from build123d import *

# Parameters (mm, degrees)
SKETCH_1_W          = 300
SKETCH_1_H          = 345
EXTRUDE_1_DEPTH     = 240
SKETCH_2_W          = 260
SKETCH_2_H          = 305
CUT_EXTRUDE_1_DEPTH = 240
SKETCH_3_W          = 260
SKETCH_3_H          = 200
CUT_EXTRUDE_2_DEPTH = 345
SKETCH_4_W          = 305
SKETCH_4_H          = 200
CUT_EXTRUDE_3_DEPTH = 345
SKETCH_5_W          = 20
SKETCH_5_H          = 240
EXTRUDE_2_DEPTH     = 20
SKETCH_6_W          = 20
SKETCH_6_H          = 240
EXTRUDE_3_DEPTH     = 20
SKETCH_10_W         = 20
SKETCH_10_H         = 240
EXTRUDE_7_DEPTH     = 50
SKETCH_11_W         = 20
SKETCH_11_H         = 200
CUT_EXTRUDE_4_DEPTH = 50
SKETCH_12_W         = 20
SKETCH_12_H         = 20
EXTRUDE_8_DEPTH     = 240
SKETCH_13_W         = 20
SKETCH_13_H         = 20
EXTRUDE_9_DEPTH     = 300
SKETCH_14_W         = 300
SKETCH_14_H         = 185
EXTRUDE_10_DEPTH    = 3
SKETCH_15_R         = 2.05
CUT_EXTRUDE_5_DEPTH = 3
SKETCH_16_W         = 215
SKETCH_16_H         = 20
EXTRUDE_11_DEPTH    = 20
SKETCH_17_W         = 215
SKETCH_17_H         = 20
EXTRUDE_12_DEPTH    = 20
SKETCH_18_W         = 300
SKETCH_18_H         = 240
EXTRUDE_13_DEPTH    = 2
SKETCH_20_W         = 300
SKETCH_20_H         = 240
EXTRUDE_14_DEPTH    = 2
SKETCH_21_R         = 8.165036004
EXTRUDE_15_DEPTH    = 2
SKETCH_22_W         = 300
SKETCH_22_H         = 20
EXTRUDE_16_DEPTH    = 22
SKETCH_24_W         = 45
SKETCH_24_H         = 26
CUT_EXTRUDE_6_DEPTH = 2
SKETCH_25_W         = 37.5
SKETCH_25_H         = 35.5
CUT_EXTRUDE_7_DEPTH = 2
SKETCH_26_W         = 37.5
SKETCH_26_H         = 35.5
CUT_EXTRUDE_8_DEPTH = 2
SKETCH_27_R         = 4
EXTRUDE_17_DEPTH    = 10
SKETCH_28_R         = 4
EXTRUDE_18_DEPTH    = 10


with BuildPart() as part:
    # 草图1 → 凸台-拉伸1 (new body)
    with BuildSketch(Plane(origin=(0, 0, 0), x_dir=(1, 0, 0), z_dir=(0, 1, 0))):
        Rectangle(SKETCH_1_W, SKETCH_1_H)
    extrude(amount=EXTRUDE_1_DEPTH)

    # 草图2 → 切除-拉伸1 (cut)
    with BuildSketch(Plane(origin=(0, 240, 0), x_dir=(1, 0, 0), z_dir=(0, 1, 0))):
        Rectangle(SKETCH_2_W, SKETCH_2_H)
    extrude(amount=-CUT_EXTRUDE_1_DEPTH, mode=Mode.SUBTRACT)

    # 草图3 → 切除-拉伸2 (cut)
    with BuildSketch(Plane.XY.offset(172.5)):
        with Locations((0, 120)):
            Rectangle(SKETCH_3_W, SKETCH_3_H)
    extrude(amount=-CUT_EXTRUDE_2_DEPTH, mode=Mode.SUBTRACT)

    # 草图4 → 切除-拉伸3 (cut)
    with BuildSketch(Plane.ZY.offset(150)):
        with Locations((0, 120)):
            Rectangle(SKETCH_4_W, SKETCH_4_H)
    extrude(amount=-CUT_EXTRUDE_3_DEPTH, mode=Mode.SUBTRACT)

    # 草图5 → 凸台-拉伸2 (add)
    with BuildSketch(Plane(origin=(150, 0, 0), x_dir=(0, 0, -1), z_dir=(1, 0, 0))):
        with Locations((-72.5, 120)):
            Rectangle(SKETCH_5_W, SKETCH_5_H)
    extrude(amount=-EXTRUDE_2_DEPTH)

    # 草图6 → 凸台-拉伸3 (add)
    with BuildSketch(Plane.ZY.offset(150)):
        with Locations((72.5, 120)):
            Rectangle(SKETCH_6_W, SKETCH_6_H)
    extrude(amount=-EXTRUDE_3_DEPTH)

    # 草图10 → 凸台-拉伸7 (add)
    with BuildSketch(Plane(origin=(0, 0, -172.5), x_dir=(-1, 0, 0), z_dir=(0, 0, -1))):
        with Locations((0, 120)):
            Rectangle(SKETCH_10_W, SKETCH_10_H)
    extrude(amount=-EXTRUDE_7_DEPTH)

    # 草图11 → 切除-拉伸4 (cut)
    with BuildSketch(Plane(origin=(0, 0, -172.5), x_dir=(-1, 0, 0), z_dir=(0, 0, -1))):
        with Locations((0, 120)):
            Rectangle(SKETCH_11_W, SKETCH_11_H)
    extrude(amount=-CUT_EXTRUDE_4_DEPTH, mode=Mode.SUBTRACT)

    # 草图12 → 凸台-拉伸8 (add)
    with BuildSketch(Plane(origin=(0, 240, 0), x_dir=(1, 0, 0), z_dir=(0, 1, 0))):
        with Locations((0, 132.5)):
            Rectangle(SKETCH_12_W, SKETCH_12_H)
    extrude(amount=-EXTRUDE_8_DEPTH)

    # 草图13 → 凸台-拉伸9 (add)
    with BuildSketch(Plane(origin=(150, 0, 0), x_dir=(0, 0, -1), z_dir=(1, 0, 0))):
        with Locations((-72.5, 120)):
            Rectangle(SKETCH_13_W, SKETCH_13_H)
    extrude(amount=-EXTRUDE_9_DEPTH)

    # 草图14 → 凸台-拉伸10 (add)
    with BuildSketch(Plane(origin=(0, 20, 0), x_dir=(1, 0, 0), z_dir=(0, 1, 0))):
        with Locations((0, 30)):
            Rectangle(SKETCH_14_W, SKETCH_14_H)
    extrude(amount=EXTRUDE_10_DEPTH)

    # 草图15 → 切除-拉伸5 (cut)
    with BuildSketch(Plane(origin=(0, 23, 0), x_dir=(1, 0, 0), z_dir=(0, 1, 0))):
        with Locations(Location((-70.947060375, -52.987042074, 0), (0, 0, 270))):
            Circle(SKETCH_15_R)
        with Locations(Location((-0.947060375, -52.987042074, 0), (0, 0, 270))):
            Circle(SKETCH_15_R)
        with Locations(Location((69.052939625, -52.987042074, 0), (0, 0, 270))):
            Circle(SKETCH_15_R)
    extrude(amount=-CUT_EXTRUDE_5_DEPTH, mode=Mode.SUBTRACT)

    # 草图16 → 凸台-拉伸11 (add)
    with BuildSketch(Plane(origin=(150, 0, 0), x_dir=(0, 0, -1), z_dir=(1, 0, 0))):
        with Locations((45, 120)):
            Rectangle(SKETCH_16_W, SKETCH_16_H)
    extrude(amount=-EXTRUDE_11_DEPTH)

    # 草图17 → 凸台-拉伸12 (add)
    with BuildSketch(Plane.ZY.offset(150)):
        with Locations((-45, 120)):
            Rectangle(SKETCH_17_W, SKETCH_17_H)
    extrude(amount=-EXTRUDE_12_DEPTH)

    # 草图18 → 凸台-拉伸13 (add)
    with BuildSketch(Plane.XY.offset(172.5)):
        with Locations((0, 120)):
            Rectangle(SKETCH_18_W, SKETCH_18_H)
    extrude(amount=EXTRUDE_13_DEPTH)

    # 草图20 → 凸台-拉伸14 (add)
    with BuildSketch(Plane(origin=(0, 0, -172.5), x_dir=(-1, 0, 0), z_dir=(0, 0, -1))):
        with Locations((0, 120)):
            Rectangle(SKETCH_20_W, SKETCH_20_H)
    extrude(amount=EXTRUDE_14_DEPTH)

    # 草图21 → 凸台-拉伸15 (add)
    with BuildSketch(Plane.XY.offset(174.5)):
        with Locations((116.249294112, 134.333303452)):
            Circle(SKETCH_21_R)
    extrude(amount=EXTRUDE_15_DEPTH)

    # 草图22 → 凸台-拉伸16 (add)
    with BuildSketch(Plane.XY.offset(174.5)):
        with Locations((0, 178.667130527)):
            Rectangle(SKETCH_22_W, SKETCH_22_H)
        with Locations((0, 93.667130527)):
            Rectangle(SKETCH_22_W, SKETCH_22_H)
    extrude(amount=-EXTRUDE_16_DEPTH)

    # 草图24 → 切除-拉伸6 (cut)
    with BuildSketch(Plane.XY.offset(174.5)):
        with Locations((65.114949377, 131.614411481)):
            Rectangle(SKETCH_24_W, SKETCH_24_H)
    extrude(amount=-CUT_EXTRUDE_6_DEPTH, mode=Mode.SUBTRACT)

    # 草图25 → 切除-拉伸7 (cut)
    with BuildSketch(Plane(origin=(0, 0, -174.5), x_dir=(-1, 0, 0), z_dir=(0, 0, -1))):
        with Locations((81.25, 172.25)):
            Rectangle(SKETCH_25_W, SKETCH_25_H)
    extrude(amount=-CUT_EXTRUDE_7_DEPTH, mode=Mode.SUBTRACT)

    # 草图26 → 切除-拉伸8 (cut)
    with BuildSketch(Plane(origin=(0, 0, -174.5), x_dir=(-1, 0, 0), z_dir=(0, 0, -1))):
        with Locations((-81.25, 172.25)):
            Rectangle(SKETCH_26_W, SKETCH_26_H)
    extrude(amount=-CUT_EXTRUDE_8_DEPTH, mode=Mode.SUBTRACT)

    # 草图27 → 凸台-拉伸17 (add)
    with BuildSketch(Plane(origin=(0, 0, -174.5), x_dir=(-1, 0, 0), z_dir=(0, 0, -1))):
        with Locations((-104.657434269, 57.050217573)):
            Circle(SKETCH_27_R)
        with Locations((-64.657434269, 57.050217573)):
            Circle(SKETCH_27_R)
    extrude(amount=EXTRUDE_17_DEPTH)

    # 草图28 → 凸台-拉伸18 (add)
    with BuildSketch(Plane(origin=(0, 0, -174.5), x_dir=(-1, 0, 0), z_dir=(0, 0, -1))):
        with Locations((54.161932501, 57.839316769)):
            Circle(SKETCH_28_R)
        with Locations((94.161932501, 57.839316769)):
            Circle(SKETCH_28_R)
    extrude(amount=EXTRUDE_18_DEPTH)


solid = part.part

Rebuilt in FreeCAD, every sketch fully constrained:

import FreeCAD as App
import Part
import Sketcher
from FreeCAD import Vector

doc = App.newDocument("Part")
body = doc.addObject("PartDesign::Body", "Body")

# Sketch on XZ plane
sketch1 = body.newObject("Sketcher::SketchObject", "Sketch")
sketch1.AttachmentSupport = (doc.getObject("XZ_Plane"), [""])
sketch1.MapMode = "FlatFace"
sketch1.addGeometry([
    Part.LineSegment(Vector(-150, -172.5, 0), Vector(-150, 172.5, 0)),
    Part.LineSegment(Vector(-150, 172.5, 0), Vector(150, 172.5, 0)),
    Part.LineSegment(Vector(150, 172.5, 0), Vector(150, -172.5, 0)),
    Part.LineSegment(Vector(150, -172.5, 0), Vector(-150, -172.5, 0)),
], False)
sketch1.addConstraint([
    Sketcher.Constraint("Coincident", 0, 2, 1, 1),
    Sketcher.Constraint("Coincident", 1, 2, 2, 1),
    Sketcher.Constraint("Coincident", 2, 2, 3, 1),
    Sketcher.Constraint("Coincident", 3, 2, 0, 1),
    Sketcher.Constraint("Vertical", 0),
    Sketcher.Constraint("Horizontal", 1),
    Sketcher.Constraint("Vertical", 2),
    Sketcher.Constraint("Horizontal", 3),
    Sketcher.Constraint("Symmetric", 0, 2, 2, 2, -1, 1),
    Sketcher.Constraint("DistanceX", 1, 1, 1, 2, 300.0),
    Sketcher.Constraint("DistanceY", 0, 1, 0, 2, 345.0),
])
pad1 = body.newObject("PartDesign::Pad", "Pad")
pad1.Profile = sketch1
pad1.Length = 240
pad1.Reversed = True

# Sketch on XZ plane
sketch2 = body.newObject("Sketcher::SketchObject", "Sketch001")
sketch2.AttachmentSupport = (doc.getObject("XZ_Plane"), [""])
sketch2.MapMode = "FlatFace"
sketch2.AttachmentOffset = App.Placement(Vector(0, 0, -240), App.Rotation())
sketch2.addGeometry([
    Part.LineSegment(Vector(-130, -152.5, 0), Vector(-130, 152.5, 0)),
    Part.LineSegment(Vector(-130, 152.5, 0), Vector(130, 152.5, 0)),
    Part.LineSegment(Vector(130, 152.5, 0), Vector(130, -152.5, 0)),
    Part.LineSegment(Vector(130, -152.5, 0), Vector(-130, -152.5, 0)),
], False)
sketch2.addConstraint([
    Sketcher.Constraint("Coincident", 0, 2, 1, 1),
    Sketcher.Constraint("Coincident", 1, 2, 2, 1),
    Sketcher.Constraint("Coincident", 2, 2, 3, 1),
    Sketcher.Constraint("Coincident", 3, 2, 0, 1),
    Sketcher.Constraint("Vertical", 0),
    Sketcher.Constraint("Horizontal", 1),
    Sketcher.Constraint("Vertical", 2),
    Sketcher.Constraint("Horizontal", 3),
    Sketcher.Constraint("Symmetric", 0, 2, 2, 2, -1, 1),
    Sketcher.Constraint("DistanceX", 1, 1, 1, 2, 260.0),
    Sketcher.Constraint("DistanceY", 0, 1, 0, 2, 305.0),
])
pocket1 = body.newObject("PartDesign::Pocket", "Pocket")
pocket1.Profile = sketch2
pocket1.Length = 240
pocket1.Reversed = True

# Sketch on XY plane
sketch3 = body.newObject("Sketcher::SketchObject", "Sketch002")
sketch3.AttachmentSupport = (doc.getObject("XY_Plane"), [""])
sketch3.MapMode = "FlatFace"
sketch3.AttachmentOffset = App.Placement(Vector(0, 0, 172.5), App.Rotation())
sketch3.addGeometry([
    Part.LineSegment(Vector(-130, 220, 0), Vector(-130, 20, 0)),
    Part.LineSegment(Vector(-130, 20, 0), Vector(130, 20, 0)),
    Part.LineSegment(Vector(130, 20, 0), Vector(130, 220, 0)),
    Part.LineSegment(Vector(130, 220, 0), Vector(-130, 220, 0)),
], False)
sketch3.addConstraint([
    Sketcher.Constraint("Coincident", 0, 2, 1, 1),
    Sketcher.Constraint("Coincident", 1, 2, 2, 1),
    Sketcher.Constraint("Coincident", 2, 2, 3, 1),
    Sketcher.Constraint("Coincident", 3, 2, 0, 1),
    Sketcher.Constraint("Vertical", 0),
    Sketcher.Constraint("Horizontal", 1),
    Sketcher.Constraint("Vertical", 2),
    Sketcher.Constraint("Horizontal", 3),
    Sketcher.Constraint("DistanceX", 1, 1, 1, 2, 260.0),
    Sketcher.Constraint("DistanceY", 0, 2, 0, 1, 200.0),
    Sketcher.Constraint("DistanceX", 0, 2, -1, 1, 130.0),
    Sketcher.Constraint("DistanceY", -1, 1, 0, 2, 20.0),
])
pocket2 = body.newObject("PartDesign::Pocket", "Pocket001")
pocket2.Profile = sketch3
pocket2.Length = 345

# Sketch on YZ plane
sketch4 = body.newObject("Sketcher::SketchObject", "Sketch003")
sketch4.AttachmentSupport = (doc.getObject("YZ_Plane"), [""])
sketch4.MapMode = "FlatFace"
sketch4.AttachmentOffset = App.Placement(Vector(0, 0, -150), App.Rotation())
sketch4.addGeometry([
    Part.LineSegment(Vector(220, -152.5, 0), Vector(20, -152.5, 0)),
    Part.LineSegment(Vector(20, -152.5, 0), Vector(20, 152.5, 0)),
    Part.LineSegment(Vector(20, 152.5, 0), Vector(220, 152.5, 0)),
    Part.LineSegment(Vector(220, 152.5, 0), Vector(220, -152.5, 0)),
], False)
sketch4.addConstraint([
    Sketcher.Constraint("Coincident", 0, 2, 1, 1),
    Sketcher.Constraint("Coincident", 1, 2, 2, 1),
    Sketcher.Constraint("Coincident", 2, 2, 3, 1),
    Sketcher.Constraint("Coincident", 3, 2, 0, 1),
    Sketcher.Constraint("Horizontal", 0),
    Sketcher.Constraint("Vertical", 1),
    Sketcher.Constraint("Horizontal", 2),
    Sketcher.Constraint("Vertical", 3),
    Sketcher.Constraint("DistanceX", 0, 2, 0, 1, 200.0),
    Sketcher.Constraint("DistanceY", 1, 1, 1, 2, 305.0),
    Sketcher.Constraint("DistanceX", -1, 1, 0, 2, 20.0),
    Sketcher.Constraint("DistanceY", 0, 2, -1, 1, 152.5),
])
pocket3 = body.newObject("PartDesign::Pocket", "Pocket002")
pocket3.Profile = sketch4
pocket3.Length = 345
pocket3.Reversed = True

# Sketch on YZ plane
sketch5 = body.newObject("Sketcher::SketchObject", "Sketch004")
sketch5.AttachmentSupport = (doc.getObject("YZ_Plane"), [""])
sketch5.MapMode = "FlatFace"
sketch5.AttachmentOffset = App.Placement(Vector(0, 0, 150), App.Rotation())
sketch5.addGeometry([
    Part.LineSegment(Vector(240, 82.5, 0), Vector(0, 82.5, 0)),
    Part.LineSegment(Vector(0, 82.5, 0), Vector(0, 62.5, 0)),
    Part.LineSegment(Vector(0, 62.5, 0), Vector(240, 62.5, 0)),
    Part.LineSegment(Vector(240, 62.5, 0), Vector(240, 82.5, 0)),
], False)
sketch5.addConstraint([
    Sketcher.Constraint("Coincident", 0, 2, 1, 1),
    Sketcher.Constraint("Coincident", 1, 2, 2, 1),
    Sketcher.Constraint("Coincident", 2, 2, 3, 1),
    Sketcher.Constraint("Coincident", 3, 2, 0, 1),
    Sketcher.Constraint("Horizontal", 0),
    Sketcher.Constraint("Vertical", 1),
    Sketcher.Constraint("Horizontal", 2),
    Sketcher.Constraint("Vertical", 3),
    Sketcher.Constraint("PointOnObject", 0, 2, -2),
    Sketcher.Constraint("DistanceX", 0, 2, 0, 1, 240.0),
    Sketcher.Constraint("DistanceY", 1, 2, 1, 1, 20.0),
    Sketcher.Constraint("DistanceY", -1, 1, 0, 2, 82.5),
])
pad2 = body.newObject("PartDesign::Pad", "Pad001")
pad2.Profile = sketch5
pad2.Length = 20
pad2.Reversed = True

# Sketch on YZ plane
sketch6 = body.newObject("Sketcher::SketchObject", "Sketch005")
sketch6.AttachmentSupport = (doc.getObject("YZ_Plane"), [""])
sketch6.MapMode = "FlatFace"
sketch6.AttachmentOffset = App.Placement(Vector(0, 0, -150), App.Rotation())
sketch6.addGeometry([
    Part.LineSegment(Vector(240, 62.5, 0), Vector(0, 62.5, 0)),
    Part.LineSegment(Vector(0, 62.5, 0), Vector(0, 82.5, 0)),
    Part.LineSegment(Vector(0, 82.5, 0), Vector(240, 82.5, 0)),
    Part.LineSegment(Vector(240, 82.5, 0), Vector(240, 62.5, 0)),
], False)
sketch6.addConstraint([
    Sketcher.Constraint("Coincident", 0, 2, 1, 1),
    Sketcher.Constraint("Coincident", 1, 2, 2, 1),
    Sketcher.Constraint("Coincident", 2, 2, 3, 1),
    Sketcher.Constraint("Coincident", 3, 2, 0, 1),
    Sketcher.Constraint("Horizontal", 0),
    Sketcher.Constraint("Vertical", 1),
    Sketcher.Constraint("Horizontal", 2),
    Sketcher.Constraint("Vertical", 3),
    Sketcher.Constraint("PointOnObject", 0, 2, -2),
    Sketcher.Constraint("DistanceX", 0, 2, 0, 1, 240.0),
    Sketcher.Constraint("DistanceY", 1, 1, 1, 2, 20.0),
    Sketcher.Constraint("DistanceY", -1, 1, 0, 2, 62.5),
])
pad3 = body.newObject("PartDesign::Pad", "Pad002")
pad3.Profile = sketch6
pad3.Length = 20

# Sketch on XY plane
sketch7 = body.newObject("Sketcher::SketchObject", "Sketch006")
sketch7.AttachmentSupport = (doc.getObject("XY_Plane"), [""])
sketch7.MapMode = "FlatFace"
sketch7.AttachmentOffset = App.Placement(Vector(0, 0, -172.5), App.Rotation())
sketch7.addGeometry([
    Part.LineSegment(Vector(10, 240, 0), Vector(10, 0, 0)),
    Part.LineSegment(Vector(10, 0, 0), Vector(-10, 0, 0)),
    Part.LineSegment(Vector(-10, 0, 0), Vector(-10, 240, 0)),
    Part.LineSegment(Vector(-10, 240, 0), Vector(10, 240, 0)),
], False)
sketch7.addConstraint([
    Sketcher.Constraint("Coincident", 0, 2, 1, 1),
    Sketcher.Constraint("Coincident", 1, 2, 2, 1),
    Sketcher.Constraint("Coincident", 2, 2, 3, 1),
    Sketcher.Constraint("Coincident", 3, 2, 0, 1),
    Sketcher.Constraint("Vertical", 0),
    Sketcher.Constraint("Horizontal", 1),
    Sketcher.Constraint("Vertical", 2),
    Sketcher.Constraint("Horizontal", 3),
    Sketcher.Constraint("Symmetric", 0, 2, 1, 2, -1, 1),
    Sketcher.Constraint("DistanceX", 1, 2, 1, 1, 20.0),
    Sketcher.Constraint("DistanceY", 0, 2, 0, 1, 240.0),
])
pad4 = body.newObject("PartDesign::Pad", "Pad003")
pad4.Profile = sketch7
pad4.Length = 50

# Sketch on XY plane
sketch8 = body.newObject("Sketcher::SketchObject", "Sketch007")
sketch8.AttachmentSupport = (doc.getObject("XY_Plane"), [""])
sketch8.MapMode = "FlatFace"
sketch8.AttachmentOffset = App.Placement(Vector(0, 0, -172.5), App.Rotation())
sketch8.addGeometry([
    Part.LineSegment(Vector(10, 220, 0), Vector(10, 20, 0)),
    Part.LineSegment(Vector(10, 20, 0), Vector(-10, 20, 0)),
    Part.LineSegment(Vector(-10, 20, 0), Vector(-10, 220, 0)),
    Part.LineSegment(Vector(-10, 220, 0), Vector(10, 220, 0)),
], False)
sketch8.addConstraint([
    Sketcher.Constraint("Coincident", 0, 2, 1, 1),
    Sketcher.Constraint("Coincident", 1, 2, 2, 1),
    Sketcher.Constraint("Coincident", 2, 2, 3, 1),
    Sketcher.Constraint("Coincident", 3, 2, 0, 1),
    Sketcher.Constraint("Vertical", 0),
    Sketcher.Constraint("Horizontal", 1),
    Sketcher.Constraint("Vertical", 2),
    Sketcher.Constraint("Horizontal", 3),
    Sketcher.Constraint("DistanceX", 1, 2, 1, 1, 20.0),
    Sketcher.Constraint("DistanceY", 0, 2, 0, 1, 200.0),
    Sketcher.Constraint("DistanceX", -1, 1, 0, 2, 10.0),
    Sketcher.Constraint("DistanceY", -1, 1, 0, 2, 20.0),
])
pocket4 = body.newObject("PartDesign::Pocket", "Pocket003")
pocket4.Profile = sketch8
pocket4.Length = 50
pocket4.Reversed = True

# Sketch on XZ plane
sketch9 = body.newObject("Sketcher::SketchObject", "Sketch008")
sketch9.AttachmentSupport = (doc.getObject("XZ_Plane"), [""])
sketch9.MapMode = "FlatFace"
sketch9.AttachmentOffset = App.Placement(Vector(0, 0, -240), App.Rotation())
sketch9.addGeometry([
    Part.LineSegment(Vector(-10, -142.5, 0), Vector(-10, -122.5, 0)),
    Part.LineSegment(Vector(-10, -122.5, 0), Vector(10, -122.5, 0)),
    Part.LineSegment(Vector(10, -122.5, 0), Vector(10, -142.5, 0)),
    Part.LineSegment(Vector(10, -142.5, 0), Vector(-10, -142.5, 0)),
], False)
sketch9.addConstraint([
    Sketcher.Constraint("Coincident", 0, 2, 1, 1),
    Sketcher.Constraint("Coincident", 1, 2, 2, 1),
    Sketcher.Constraint("Coincident", 2, 2, 3, 1),
    Sketcher.Constraint("Coincident", 3, 2, 0, 1),
    Sketcher.Constraint("Vertical", 0),
    Sketcher.Constraint("Horizontal", 1),
    Sketcher.Constraint("Vertical", 2),
    Sketcher.Constraint("Horizontal", 3),
    Sketcher.Constraint("Equal", 3, 0),
    Sketcher.Constraint("DistanceX", 1, 1, 1, 2, 20.0),
    Sketcher.Constraint("DistanceX", 0, 2, -1, 1, 10.0),
    Sketcher.Constraint("DistanceY", 0, 2, -1, 1, 122.5),
])
pad5 = body.newObject("PartDesign::Pad", "Pad004")
pad5.Profile = sketch9
pad5.Length = 240

# Sketch on YZ plane
sketch10 = body.newObject("Sketcher::SketchObject", "Sketch009")
sketch10.AttachmentSupport = (doc.getObject("YZ_Plane"), [""])
sketch10.MapMode = "FlatFace"
sketch10.AttachmentOffset = App.Placement(Vector(0, 0, 150), App.Rotation())
sketch10.addGeometry([
    Part.LineSegment(Vector(130, 82.5, 0), Vector(110, 82.5, 0)),
    Part.LineSegment(Vector(110, 82.5, 0), Vector(110, 62.5, 0)),
    Part.LineSegment(Vector(110, 62.5, 0), Vector(130, 62.5, 0)),
    Part.LineSegment(Vector(130, 62.5, 0), Vector(130, 82.5, 0)),
], False)
sketch10.addConstraint([
    Sketcher.Constraint("Coincident", 0, 2, 1, 1),
    Sketcher.Constraint("Coincident", 1, 2, 2, 1),
    Sketcher.Constraint("Coincident", 2, 2, 3, 1),
    Sketcher.Constraint("Coincident", 3, 2, 0, 1),
    Sketcher.Constraint("Horizontal", 0),
    Sketcher.Constraint("Vertical", 1),
    Sketcher.Constraint("Horizontal", 2),
    Sketcher.Constraint("Vertical", 3),
    Sketcher.Constraint("Equal", 2, 1),
    Sketcher.Constraint("DistanceX", 0, 2, 0, 1, 20.0),
    Sketcher.Constraint("DistanceX", -1, 1, 0, 2, 110.0),
    Sketcher.Constraint("DistanceY", -1, 1, 0, 2, 82.5),
])
pad6 = body.newObject("PartDesign::Pad", "Pad005")
pad6.Profile = sketch10
pad6.Length = 300
pad6.Reversed = True

# Sketch on XZ plane
sketch11 = body.newObject("Sketcher::SketchObject", "Sketch010")
sketch11.AttachmentSupport = (doc.getObject("XZ_Plane"), [""])
sketch11.MapMode = "FlatFace"
sketch11.AttachmentOffset = App.Placement(Vector(0, 0, -20), App.Rotation())
sketch11.addGeometry([
    Part.LineSegment(Vector(-150, -122.5, 0), Vector(-150, 62.5, 0)),
    Part.LineSegment(Vector(-150, 62.5, 0), Vector(150, 62.5, 0)),
    Part.LineSegment(Vector(150, 62.5, 0), Vector(150, -122.5, 0)),
    Part.LineSegment(Vector(150, -122.5, 0), Vector(-150, -122.5, 0)),
], False)
sketch11.addConstraint([
    Sketcher.Constraint("Coincident", 0, 2, 1, 1),
    Sketcher.Constraint("Coincident", 1, 2, 2, 1),
    Sketcher.Constraint("Coincident", 2, 2, 3, 1),
    Sketcher.Constraint("Coincident", 3, 2, 0, 1),
    Sketcher.Constraint("Vertical", 0),
    Sketcher.Constraint("Horizontal", 1),
    Sketcher.Constraint("Vertical", 2),
    Sketcher.Constraint("Horizontal", 3),
    Sketcher.Constraint("DistanceX", 1, 1, 1, 2, 300.0),
    Sketcher.Constraint("DistanceY", 0, 1, 0, 2, 185.0),
    Sketcher.Constraint("DistanceX", 0, 2, -1, 1, 150.0),
    Sketcher.Constraint("DistanceY", -1, 1, 0, 2, 62.5),
])
pad7 = body.newObject("PartDesign::Pad", "Pad006")
pad7.Profile = sketch11
pad7.Length = 3
pad7.Reversed = True

# Sketch on XZ plane
sketch12 = body.newObject("Sketcher::SketchObject", "Sketch011")
sketch12.AttachmentSupport = (doc.getObject("XZ_Plane"), [""])
sketch12.MapMode = "FlatFace"
sketch12.AttachmentOffset = App.Placement(Vector(0, 0, -23), App.Rotation())
sketch12.addGeometry([
    Part.Circle(Vector(-70.94706, 52.987042, 0), Vector(0, 0, 1), 2.05),
    Part.Circle(Vector(-0.94706, 52.987042, 0), Vector(0, 0, 1), 2.05),
    Part.Circle(Vector(69.05294, 52.987042, 0), Vector(0, 0, 1), 2.05),
], False)
sketch12.addConstraint([
    Sketcher.Constraint("Equal", 0, 1),
    Sketcher.Constraint("Equal", 1, 2),
    Sketcher.Constraint("Horizontal", 0, 3, 1, 3),
    Sketcher.Constraint("Horizontal", 1, 3, 2, 3),
    Sketcher.Constraint("Diameter", 0, 4.1),
    Sketcher.Constraint("DistanceX", 0, 3, 1, 3, 70.0),
    Sketcher.Constraint("DistanceX", 1, 3, 2, 3, 70.0),
    Sketcher.Constraint("DistanceX", 0, 3, -1, 1, 70.94706),
    Sketcher.Constraint("DistanceY", -1, 1, 0, 3, 52.987042),
])
pocket5 = body.newObject("PartDesign::Pocket", "Pocket004")
pocket5.Profile = sketch12
pocket5.Length = 3
pocket5.Reversed = True

# Sketch on YZ plane
sketch13 = body.newObject("Sketcher::SketchObject", "Sketch012")
sketch13.AttachmentSupport = (doc.getObject("YZ_Plane"), [""])
sketch13.MapMode = "FlatFace"
sketch13.AttachmentOffset = App.Placement(Vector(0, 0, 150), App.Rotation())
sketch13.addGeometry([
    Part.LineSegment(Vector(130, 62.5, 0), Vector(110, 62.5, 0)),
    Part.LineSegment(Vector(110, 62.5, 0), Vector(110, -152.5, 0)),
    Part.LineSegment(Vector(110, -152.5, 0), Vector(130, -152.5, 0)),
    Part.LineSegment(Vector(130, -152.5, 0), Vector(130, 62.5, 0)),
], False)
sketch13.addConstraint([
    Sketcher.Constraint("Coincident", 0, 2, 1, 1),
    Sketcher.Constraint("Coincident", 1, 2, 2, 1),
    Sketcher.Constraint("Coincident", 2, 2, 3, 1),
    Sketcher.Constraint("Coincident", 3, 2, 0, 1),
    Sketcher.Constraint("Horizontal", 0),
    Sketcher.Constraint("Vertical", 1),
    Sketcher.Constraint("Horizontal", 2),
    Sketcher.Constraint("Vertical", 3),
    Sketcher.Constraint("DistanceX", 0, 2, 0, 1, 20.0),
    Sketcher.Constraint("DistanceY", 1, 2, 1, 1, 215.0),
    Sketcher.Constraint("DistanceX", -1, 1, 0, 2, 110.0),
    Sketcher.Constraint("DistanceY", -1, 1, 0, 2, 62.5),
])
pad8 = body.newObject("PartDesign::Pad", "Pad007")
pad8.Profile = sketch13
pad8.Length = 20
pad8.Reversed = True

# Sketch on YZ plane
sketch14 = body.newObject("Sketcher::SketchObject", "Sketch013")
sketch14.AttachmentSupport = (doc.getObject("YZ_Plane"), [""])
sketch14.MapMode = "FlatFace"
sketch14.AttachmentOffset = App.Placement(Vector(0, 0, -150), App.Rotation())
sketch14.addGeometry([
    Part.LineSegment(Vector(130, -152.5, 0), Vector(110, -152.5, 0)),
    Part.LineSegment(Vector(110, -152.5, 0), Vector(110, 62.5, 0)),
    Part.LineSegment(Vector(110, 62.5, 0), Vector(130, 62.5, 0)),
    Part.LineSegment(Vector(130, 62.5, 0), Vector(130, -152.5, 0)),
], False)
sketch14.addConstraint([
    Sketcher.Constraint("Coincident", 0, 2, 1, 1),
    Sketcher.Constraint("Coincident", 1, 2, 2, 1),
    Sketcher.Constraint("Coincident", 2, 2, 3, 1),
    Sketcher.Constraint("Coincident", 3, 2, 0, 1),
    Sketcher.Constraint("Horizontal", 0),
    Sketcher.Constraint("Vertical", 1),
    Sketcher.Constraint("Horizontal", 2),
    Sketcher.Constraint("Vertical", 3),
    Sketcher.Constraint("DistanceX", 0, 2, 0, 1, 20.0),
    Sketcher.Constraint("DistanceY", 1, 1, 1, 2, 215.0),
    Sketcher.Constraint("DistanceX", -1, 1, 0, 2, 110.0),
    Sketcher.Constraint("DistanceY", 0, 2, -1, 1, 152.5),
])
pad9 = body.newObject("PartDesign::Pad", "Pad008")
pad9.Profile = sketch14
pad9.Length = 20

# Sketch on XY plane
sketch15 = body.newObject("Sketcher::SketchObject", "Sketch014")
sketch15.AttachmentSupport = (doc.getObject("XY_Plane"), [""])
sketch15.MapMode = "FlatFace"
sketch15.AttachmentOffset = App.Placement(Vector(0, 0, 172.5), App.Rotation())
sketch15.addGeometry([
    Part.LineSegment(Vector(-150, 240, 0), Vector(-150, 0, 0)),
    Part.LineSegment(Vector(-150, 0, 0), Vector(150, 0, 0)),
    Part.LineSegment(Vector(150, 0, 0), Vector(150, 240, 0)),
    Part.LineSegment(Vector(150, 240, 0), Vector(-150, 240, 0)),
], False)
sketch15.addConstraint([
    Sketcher.Constraint("Coincident", 0, 2, 1, 1),
    Sketcher.Constraint("Coincident", 1, 2, 2, 1),
    Sketcher.Constraint("Coincident", 2, 2, 3, 1),
    Sketcher.Constraint("Coincident", 3, 2, 0, 1),
    Sketcher.Constraint("Vertical", 0),
    Sketcher.Constraint("Horizontal", 1),
    Sketcher.Constraint("Vertical", 2),
    Sketcher.Constraint("Horizontal", 3),
    Sketcher.Constraint("Symmetric", 0, 2, 1, 2, -1, 1),
    Sketcher.Constraint("DistanceX", 1, 1, 1, 2, 300.0),
    Sketcher.Constraint("DistanceY", 0, 2, 0, 1, 240.0),
])
pad10 = body.newObject("PartDesign::Pad", "Pad009")
pad10.Profile = sketch15
pad10.Length = 2

# Sketch on XY plane
sketch16 = body.newObject("Sketcher::SketchObject", "Sketch015")
sketch16.AttachmentSupport = (doc.getObject("XY_Plane"), [""])
sketch16.MapMode = "FlatFace"
sketch16.AttachmentOffset = App.Placement(Vector(0, 0, -172.5), App.Rotation())
sketch16.addGeometry([
    Part.LineSegment(Vector(150, 240, 0), Vector(150, 0, 0)),
    Part.LineSegment(Vector(150, 0, 0), Vector(-150, 0, 0)),
    Part.LineSegment(Vector(-150, 0, 0), Vector(-150, 240, 0)),
    Part.LineSegment(Vector(-150, 240, 0), Vector(150, 240, 0)),
], False)
sketch16.addConstraint([
    Sketcher.Constraint("Coincident", 0, 2, 1, 1),
    Sketcher.Constraint("Coincident", 1, 2, 2, 1),
    Sketcher.Constraint("Coincident", 2, 2, 3, 1),
    Sketcher.Constraint("Coincident", 3, 2, 0, 1),
    Sketcher.Constraint("Vertical", 0),
    Sketcher.Constraint("Horizontal", 1),
    Sketcher.Constraint("Vertical", 2),
    Sketcher.Constraint("Horizontal", 3),
    Sketcher.Constraint("Symmetric", 0, 2, 1, 2, -1, 1),
    Sketcher.Constraint("DistanceX", 1, 2, 1, 1, 300.0),
    Sketcher.Constraint("DistanceY", 0, 2, 0, 1, 240.0),
])
pad11 = body.newObject("PartDesign::Pad", "Pad010")
pad11.Profile = sketch16
pad11.Length = 2
pad11.Reversed = True

# Sketch on XY plane
sketch17 = body.newObject("Sketcher::SketchObject", "Sketch016")
sketch17.AttachmentSupport = (doc.getObject("XY_Plane"), [""])
sketch17.MapMode = "FlatFace"
sketch17.AttachmentOffset = App.Placement(Vector(0, 0, 174.5), App.Rotation())
sketch17.addGeometry(Part.Circle(Vector(116.249294, 134.333303, 0), Vector(0, 0, 1), 8.165036), False)
sketch17.addConstraint([
    Sketcher.Constraint("Diameter", 0, 16.330072),
    Sketcher.Constraint("DistanceX", -1, 1, 0, 3, 116.249294),
    Sketcher.Constraint("DistanceY", -1, 1, 0, 3, 134.333303),
])
pad12 = body.newObject("PartDesign::Pad", "Pad011")
pad12.Profile = sketch17
pad12.Length = 2

# Sketch on XY plane
sketch18 = body.newObject("Sketcher::SketchObject", "Sketch017")
sketch18.AttachmentSupport = (doc.getObject("XY_Plane"), [""])
sketch18.MapMode = "FlatFace"
sketch18.AttachmentOffset = App.Placement(Vector(0, 0, 174.5), App.Rotation())
sketch18.addGeometry([
    Part.LineSegment(Vector(-150, 188.667131, 0), Vector(-150, 168.667131, 0)),  # 0
    Part.LineSegment(Vector(-150, 168.667131, 0), Vector(150, 168.667131, 0)),  # 1
    Part.LineSegment(Vector(150, 168.667131, 0), Vector(150, 188.667131, 0)),  # 2
    Part.LineSegment(Vector(150, 188.667131, 0), Vector(-150, 188.667131, 0)),  # 3
    Part.LineSegment(Vector(-150, 103.667131, 0), Vector(-150, 83.667131, 0)),  # 4
    Part.LineSegment(Vector(-150, 83.667131, 0), Vector(150, 83.667131, 0)),  # 5
    Part.LineSegment(Vector(150, 83.667131, 0), Vector(150, 103.667131, 0)),  # 6
    Part.LineSegment(Vector(150, 103.667131, 0), Vector(-150, 103.667131, 0)),  # 7
], False)
sketch18.addConstraint([
    Sketcher.Constraint("Coincident", 0, 2, 1, 1),
    Sketcher.Constraint("Coincident", 1, 2, 2, 1),
    Sketcher.Constraint("Coincident", 2, 2, 3, 1),
    Sketcher.Constraint("Coincident", 3, 2, 0, 1),
    Sketcher.Constraint("Coincident", 4, 2, 5, 1),
    Sketcher.Constraint("Coincident", 5, 2, 6, 1),
    Sketcher.Constraint("Coincident", 6, 2, 7, 1),
    Sketcher.Constraint("Coincident", 7, 2, 4, 1),
    Sketcher.Constraint("Vertical", 0),
    Sketcher.Constraint("Horizontal", 1),
    Sketcher.Constraint("Vertical", 2),
    Sketcher.Constraint("Horizontal", 3),
    Sketcher.Constraint("Vertical", 4),
    Sketcher.Constraint("Horizontal", 5),
    Sketcher.Constraint("Vertical", 6),
    Sketcher.Constraint("Horizontal", 7),
    Sketcher.Constraint("Vertical", 3, 2, 4, 2),
    Sketcher.Constraint("Vertical", 2, 2, 5, 2),
    Sketcher.Constraint("Equal", 2, 4),
    Sketcher.Constraint("DistanceX", 1, 1, 1, 2, 300.0),
    Sketcher.Constraint("DistanceY", 0, 2, 0, 1, 20.0),
    Sketcher.Constraint("DistanceX", 0, 2, -1, 1, 150.0),
    Sketcher.Constraint("DistanceY", 4, 2, 0, 2, 85.0),
    Sketcher.Constraint("DistanceY", -1, 1, 0, 2, 168.667131),
])
pad13 = body.newObject("PartDesign::Pad", "Pad012")
pad13.Profile = sketch18
pad13.Length = 22
pad13.Reversed = True

# Sketch on XY plane
sketch19 = body.newObject("Sketcher::SketchObject", "Sketch018")
sketch19.AttachmentSupport = (doc.getObject("XY_Plane"), [""])
sketch19.MapMode = "FlatFace"
sketch19.AttachmentOffset = App.Placement(Vector(0, 0, 174.5), App.Rotation())
sketch19.addGeometry([
    Part.LineSegment(Vector(42.614949, 144.614411, 0), Vector(42.614949, 118.614411, 0)),
    Part.LineSegment(Vector(42.614949, 118.614411, 0), Vector(87.614949, 118.614411, 0)),
    Part.LineSegment(Vector(87.614949, 118.614411, 0), Vector(87.614949, 144.614411, 0)),
    Part.LineSegment(Vector(87.614949, 144.614411, 0), Vector(42.614949, 144.614411, 0)),
], False)
sketch19.addConstraint([
    Sketcher.Constraint("Coincident", 0, 2, 1, 1),
    Sketcher.Constraint("Coincident", 1, 2, 2, 1),
    Sketcher.Constraint("Coincident", 2, 2, 3, 1),
    Sketcher.Constraint("Coincident", 3, 2, 0, 1),
    Sketcher.Constraint("Vertical", 0),
    Sketcher.Constraint("Horizontal", 1),
    Sketcher.Constraint("Vertical", 2),
    Sketcher.Constraint("Horizontal", 3),
    Sketcher.Constraint("DistanceX", 1, 1, 1, 2, 45.0),
    Sketcher.Constraint("DistanceY", 0, 2, 0, 1, 26.0),
    Sketcher.Constraint("DistanceX", -1, 1, 0, 2, 42.614949),
    Sketcher.Constraint("DistanceY", -1, 1, 0, 2, 118.614411),
])
pocket6 = body.newObject("PartDesign::Pocket", "Pocket005")
pocket6.Profile = sketch19
pocket6.Length = 2

# Sketch on XY plane
sketch20 = body.newObject("Sketcher::SketchObject", "Sketch019")
sketch20.AttachmentSupport = (doc.getObject("XY_Plane"), [""])
sketch20.MapMode = "FlatFace"
sketch20.AttachmentOffset = App.Placement(Vector(0, 0, -174.5), App.Rotation())
sketch20.addGeometry([
    Part.LineSegment(Vector(-62.5, 190, 0), Vector(-62.5, 154.5, 0)),
    Part.LineSegment(Vector(-62.5, 154.5, 0), Vector(-100, 154.5, 0)),
    Part.LineSegment(Vector(-100, 154.5, 0), Vector(-100, 190, 0)),
    Part.LineSegment(Vector(-100, 190, 0), Vector(-62.5, 190, 0)),
], False)
sketch20.addConstraint([
    Sketcher.Constraint("Coincident", 0, 2, 1, 1),
    Sketcher.Constraint("Coincident", 1, 2, 2, 1),
    Sketcher.Constraint("Coincident", 2, 2, 3, 1),
    Sketcher.Constraint("Coincident", 3, 2, 0, 1),
    Sketcher.Constraint("Vertical", 0),
    Sketcher.Constraint("Horizontal", 1),
    Sketcher.Constraint("Vertical", 2),
    Sketcher.Constraint("Horizontal", 3),
    Sketcher.Constraint("DistanceX", 1, 2, 1, 1, 37.5),
    Sketcher.Constraint("DistanceY", 0, 2, 0, 1, 35.5),
    Sketcher.Constraint("DistanceX", 1, 2, -1, 1, 100.0),
    Sketcher.Constraint("DistanceY", -1, 1, 2, 2, 190.0),
])
pocket7 = body.newObject("PartDesign::Pocket", "Pocket006")
pocket7.Profile = sketch20
pocket7.Length = 2
pocket7.Reversed = True

# Sketch on XY plane
sketch21 = body.newObject("Sketcher::SketchObject", "Sketch020")
sketch21.AttachmentSupport = (doc.getObject("XY_Plane"), [""])
sketch21.MapMode = "FlatFace"
sketch21.AttachmentOffset = App.Placement(Vector(0, 0, -174.5), App.Rotation())
sketch21.addGeometry([
    Part.LineSegment(Vector(100, 190, 0), Vector(100, 154.5, 0)),
    Part.LineSegment(Vector(100, 154.5, 0), Vector(62.5, 154.5, 0)),
    Part.LineSegment(Vector(62.5, 154.5, 0), Vector(62.5, 190, 0)),
    Part.LineSegment(Vector(62.5, 190, 0), Vector(100, 190, 0)),
], False)
sketch21.addConstraint([
    Sketcher.Constraint("Coincident", 0, 2, 1, 1),
    Sketcher.Constraint("Coincident", 1, 2, 2, 1),
    Sketcher.Constraint("Coincident", 2, 2, 3, 1),
    Sketcher.Constraint("Coincident", 3, 2, 0, 1),
    Sketcher.Constraint("Vertical", 0),
    Sketcher.Constraint("Horizontal", 1),
    Sketcher.Constraint("Vertical", 2),
    Sketcher.Constraint("Horizontal", 3),
    Sketcher.Constraint("DistanceX", 1, 2, 1, 1, 37.5),
    Sketcher.Constraint("DistanceY", 0, 2, 0, 1, 35.5),
    Sketcher.Constraint("DistanceX", -1, 1, 0, 2, 100.0),
    Sketcher.Constraint("DistanceY", -1, 1, 2, 2, 190.0),
])
pocket8 = body.newObject("PartDesign::Pocket", "Pocket007")
pocket8.Profile = sketch21
pocket8.Length = 2
pocket8.Reversed = True

# Sketch on XY plane
sketch22 = body.newObject("Sketcher::SketchObject", "Sketch021")
sketch22.AttachmentSupport = (doc.getObject("XY_Plane"), [""])
sketch22.MapMode = "FlatFace"
sketch22.AttachmentOffset = App.Placement(Vector(0, 0, -174.5), App.Rotation())
sketch22.addGeometry([
    Part.Circle(Vector(104.657434, 57.050218, 0), Vector(0, 0, 1), 4),
    Part.Circle(Vector(64.657434, 57.050218, 0), Vector(0, 0, 1), 4),
], False)
sketch22.addConstraint([
    Sketcher.Constraint("Equal", 0, 1),
    Sketcher.Constraint("Horizontal", 0, 3, 1, 3),
    Sketcher.Constraint("Diameter", 0, 8.0),
    Sketcher.Constraint("DistanceX", 1, 3, 0, 3, 40.0),
    Sketcher.Constraint("DistanceX", -1, 1, 0, 3, 104.657434),
    Sketcher.Constraint("DistanceY", -1, 1, 0, 3, 57.050218),
])
pad14 = body.newObject("PartDesign::Pad", "Pad013")
pad14.Profile = sketch22
pad14.Length = 10
pad14.Reversed = True

# Sketch on XY plane
sketch23 = body.newObject("Sketcher::SketchObject", "Sketch022")
sketch23.AttachmentSupport = (doc.getObject("XY_Plane"), [""])
sketch23.MapMode = "FlatFace"
sketch23.AttachmentOffset = App.Placement(Vector(0, 0, -174.5), App.Rotation())
sketch23.addGeometry([
    Part.Circle(Vector(-54.161933, 57.839317, 0), Vector(0, 0, 1), 4),
    Part.Circle(Vector(-94.161933, 57.839317, 0), Vector(0, 0, 1), 4),
], False)
sketch23.addConstraint([
    Sketcher.Constraint("Equal", 0, 1),
    Sketcher.Constraint("Horizontal", 0, 3, 1, 3),
    Sketcher.Constraint("Diameter", 0, 8.0),
    Sketcher.Constraint("DistanceX", 1, 3, 0, 3, 40.0),
    Sketcher.Constraint("DistanceX", 0, 3, -1, 1, 54.161933),
    Sketcher.Constraint("DistanceY", -1, 1, 0, 3, 57.839317),
])
pad15 = body.newObject("PartDesign::Pad", "Pad014")
pad15.Profile = sketch23
pad15.Length = 10
pad15.Reversed = True

doc.recompute()
